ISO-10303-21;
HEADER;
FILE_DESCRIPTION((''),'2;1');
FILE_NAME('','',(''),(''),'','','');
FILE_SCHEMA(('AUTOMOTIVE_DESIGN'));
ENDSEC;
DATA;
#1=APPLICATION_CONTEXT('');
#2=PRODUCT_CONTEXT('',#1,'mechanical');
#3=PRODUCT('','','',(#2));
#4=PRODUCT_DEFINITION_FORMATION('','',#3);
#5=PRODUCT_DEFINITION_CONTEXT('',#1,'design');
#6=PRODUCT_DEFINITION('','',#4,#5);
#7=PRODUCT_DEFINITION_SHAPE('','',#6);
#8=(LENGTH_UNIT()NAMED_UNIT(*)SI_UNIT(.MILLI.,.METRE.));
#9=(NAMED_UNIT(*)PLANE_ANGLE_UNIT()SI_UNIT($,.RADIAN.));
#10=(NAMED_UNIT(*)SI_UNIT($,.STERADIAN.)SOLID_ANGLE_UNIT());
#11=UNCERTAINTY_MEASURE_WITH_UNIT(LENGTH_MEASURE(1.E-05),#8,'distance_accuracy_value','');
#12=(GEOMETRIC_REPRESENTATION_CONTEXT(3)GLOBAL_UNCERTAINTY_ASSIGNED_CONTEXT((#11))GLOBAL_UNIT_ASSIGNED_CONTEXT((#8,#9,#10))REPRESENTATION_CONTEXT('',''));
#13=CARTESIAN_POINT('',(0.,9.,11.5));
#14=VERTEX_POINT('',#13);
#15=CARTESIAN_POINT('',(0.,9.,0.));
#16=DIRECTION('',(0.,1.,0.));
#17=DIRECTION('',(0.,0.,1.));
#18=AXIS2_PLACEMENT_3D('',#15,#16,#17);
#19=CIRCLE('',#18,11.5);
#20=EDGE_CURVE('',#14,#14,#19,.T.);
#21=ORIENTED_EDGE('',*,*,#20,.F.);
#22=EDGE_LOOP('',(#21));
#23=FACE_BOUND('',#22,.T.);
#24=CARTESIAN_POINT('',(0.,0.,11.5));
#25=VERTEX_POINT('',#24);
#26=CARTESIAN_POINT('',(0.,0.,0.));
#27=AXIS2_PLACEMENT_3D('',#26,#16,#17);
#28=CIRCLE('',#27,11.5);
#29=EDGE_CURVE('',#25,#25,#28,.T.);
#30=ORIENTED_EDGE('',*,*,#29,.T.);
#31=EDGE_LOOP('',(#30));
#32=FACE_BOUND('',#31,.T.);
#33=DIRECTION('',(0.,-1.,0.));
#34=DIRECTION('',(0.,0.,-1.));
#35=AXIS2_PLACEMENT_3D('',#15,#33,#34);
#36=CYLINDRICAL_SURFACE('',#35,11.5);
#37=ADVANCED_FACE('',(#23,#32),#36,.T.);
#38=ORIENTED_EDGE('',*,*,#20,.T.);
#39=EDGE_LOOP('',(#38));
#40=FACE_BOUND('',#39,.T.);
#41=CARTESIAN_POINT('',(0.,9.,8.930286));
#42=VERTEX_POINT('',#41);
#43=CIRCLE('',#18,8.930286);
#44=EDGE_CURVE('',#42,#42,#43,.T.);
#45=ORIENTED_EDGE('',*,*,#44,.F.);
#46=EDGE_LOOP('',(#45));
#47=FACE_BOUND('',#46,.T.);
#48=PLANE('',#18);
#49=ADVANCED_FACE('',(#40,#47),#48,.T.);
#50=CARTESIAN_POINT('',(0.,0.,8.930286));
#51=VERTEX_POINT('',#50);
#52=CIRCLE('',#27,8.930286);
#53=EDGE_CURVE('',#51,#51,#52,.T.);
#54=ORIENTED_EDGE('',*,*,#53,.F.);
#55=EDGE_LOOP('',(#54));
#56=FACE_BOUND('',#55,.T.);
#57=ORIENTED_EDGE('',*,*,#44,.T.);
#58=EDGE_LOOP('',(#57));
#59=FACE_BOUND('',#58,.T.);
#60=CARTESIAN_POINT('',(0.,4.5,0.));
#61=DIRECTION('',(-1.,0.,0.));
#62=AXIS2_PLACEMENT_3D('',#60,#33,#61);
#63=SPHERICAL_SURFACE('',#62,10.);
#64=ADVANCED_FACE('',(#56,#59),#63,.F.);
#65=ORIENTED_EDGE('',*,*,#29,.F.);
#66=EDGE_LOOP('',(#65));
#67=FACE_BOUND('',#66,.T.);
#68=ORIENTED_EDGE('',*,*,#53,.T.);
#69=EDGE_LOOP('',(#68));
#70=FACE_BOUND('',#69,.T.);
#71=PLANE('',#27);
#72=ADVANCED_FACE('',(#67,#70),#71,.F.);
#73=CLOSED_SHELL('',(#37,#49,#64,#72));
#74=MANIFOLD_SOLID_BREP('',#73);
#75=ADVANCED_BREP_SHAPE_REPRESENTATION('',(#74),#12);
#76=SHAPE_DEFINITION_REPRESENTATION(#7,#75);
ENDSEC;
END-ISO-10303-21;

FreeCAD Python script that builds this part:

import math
import FreeCAD as App
import Part
import Sketcher
from FreeCAD import Vector

doc = App.newDocument("Part")
body = doc.addObject("PartDesign::Body", "Body")

# Sketch on XZ plane
sketch1 = body.newObject("Sketcher::SketchObject", "Sketch")
sketch1.AttachmentSupport = (doc.getObject("XZ_Plane"), [""])
sketch1.MapMode = "FlatFace"
sketch1.addGeometry(Part.Circle(Vector(0, 0, 0), Vector(0, 0, 1), 12), False)
sketch1.addGeometry(Part.Circle(Vector(0, 0, 0), Vector(0, 0, 1), 8), False)
sketch1.addConstraint(Sketcher.Constraint("Coincident", 0, 3, -1, 1))
sketch1.addConstraint(Sketcher.Constraint("Coincident", 1, 3, -1, 1))
sketch1.addConstraint(Sketcher.Constraint("Diameter", 0, 23.0))
sketch1.addConstraint(Sketcher.Constraint("Diameter", 1, 17.0))
pad1 = body.newObject("PartDesign::Pad", "Pad")
pad1.Profile = sketch1
pad1.Length = 9
pad1.Reversed = True

# Sketch on XY plane
sketch2 = body.newObject("Sketcher::SketchObject", "Sketch001")
sketch2.AttachmentSupport = (doc.getObject("XY_Plane"), [""])
sketch2.MapMode = "FlatFace"
sketch2.addGeometry(Part.LineSegment(Vector(0, 14, 0), Vector(0, -6, 0)), False)
sketch2.addGeometry(Part.ArcOfCircle(Part.Circle(Vector(0, 4, 0), Vector(0, 0, 1), 10), math.radians(-90), math.radians(90)), False)
sketch2.addConstraint(Sketcher.Constraint("Coincident", 0, 1, 1, 2))
sketch2.addConstraint(Sketcher.Constraint("Coincident", 1, 1, 0, 2))
sketch2.addConstraint(Sketcher.Constraint("Vertical", 0))
sketch2.addConstraint(Sketcher.Constraint("PointOnObject", 1, 3, -2))
sketch2.addConstraint(Sketcher.Constraint("PointOnObject", 0, 1, -2))
sketch2.addConstraint(Sketcher.Constraint("Radius", 1, 10.0))
sketch2.addConstraint(Sketcher.Constraint("DistanceY", -1, 1, 1, 3, 4.5))
groove = body.newObject("PartDesign::Groove", "Groove")
groove.Profile = sketch2
groove.ReferenceAxis = (sketch2, ["V_Axis"])
groove.Angle = 360

doc.recompute()
